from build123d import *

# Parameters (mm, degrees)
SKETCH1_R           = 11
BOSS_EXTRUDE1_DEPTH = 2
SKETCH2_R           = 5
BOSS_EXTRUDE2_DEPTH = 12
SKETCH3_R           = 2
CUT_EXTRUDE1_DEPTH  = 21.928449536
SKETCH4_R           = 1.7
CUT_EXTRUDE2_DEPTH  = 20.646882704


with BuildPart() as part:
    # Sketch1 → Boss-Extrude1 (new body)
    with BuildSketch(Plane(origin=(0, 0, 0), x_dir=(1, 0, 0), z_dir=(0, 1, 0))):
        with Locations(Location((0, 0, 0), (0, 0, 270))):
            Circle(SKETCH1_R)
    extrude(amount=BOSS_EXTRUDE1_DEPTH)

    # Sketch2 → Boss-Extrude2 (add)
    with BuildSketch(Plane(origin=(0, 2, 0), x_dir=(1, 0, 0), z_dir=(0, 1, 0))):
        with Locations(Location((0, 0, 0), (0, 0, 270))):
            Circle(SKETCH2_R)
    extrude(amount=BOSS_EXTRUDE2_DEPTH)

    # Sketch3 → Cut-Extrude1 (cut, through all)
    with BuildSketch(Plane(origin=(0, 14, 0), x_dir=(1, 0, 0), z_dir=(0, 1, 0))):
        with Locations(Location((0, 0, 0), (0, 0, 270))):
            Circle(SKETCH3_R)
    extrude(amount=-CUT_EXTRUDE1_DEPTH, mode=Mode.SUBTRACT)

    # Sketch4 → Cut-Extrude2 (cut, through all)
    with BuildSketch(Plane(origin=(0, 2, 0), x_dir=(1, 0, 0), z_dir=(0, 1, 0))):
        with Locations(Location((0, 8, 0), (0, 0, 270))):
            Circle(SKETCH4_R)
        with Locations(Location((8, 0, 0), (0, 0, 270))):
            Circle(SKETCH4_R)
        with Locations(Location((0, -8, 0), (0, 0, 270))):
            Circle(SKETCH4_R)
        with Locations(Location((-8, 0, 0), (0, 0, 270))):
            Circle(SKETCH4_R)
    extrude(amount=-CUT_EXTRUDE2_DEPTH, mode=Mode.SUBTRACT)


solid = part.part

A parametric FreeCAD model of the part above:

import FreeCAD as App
import Part
import Sketcher

V = App.Vector

doc = App.newDocument("Part")
body = doc.addObject("PartDesign::Body", "Body")

sketch1 = doc.addObject("Sketcher::SketchObject", "Sketch")
body.addObject(sketch1)
sketch1.AttachmentSupport = (doc.XZ_Plane, [""])
sketch1.MapMode = "FlatFace"
sketch1.addGeometry(Part.Circle(V(0, 0, 0), V(0, 0, 1), 11), False)
sketch1.addConstraint(Sketcher.Constraint("Coincident", 0, 3, -1, 1))
sketch1.addConstraint(Sketcher.Constraint("Diameter", 0, 22.0))
pad1 = doc.addObject("PartDesign::Pad", "Pad")
body.addObject(pad1)
pad1.Profile = sketch1
pad1.Length = 2
pad1.Reversed = True

sketch2 = doc.addObject("Sketcher::SketchObject", "Sketch001")
body.addObject(sketch2)
sketch2.AttachmentSupport = (doc.XZ_Plane, [""])
sketch2.MapMode = "FlatFace"
sketch2.AttachmentOffset = App.Placement(V(0, 0, -2), App.Rotation())
sketch2.addGeometry(Part.Circle(V(0, 0, 0), V(0, 0, 1), 5), False)
sketch2.addConstraint(Sketcher.Constraint("Coincident", 0, 3, -1, 1))
sketch2.addConstraint(Sketcher.Constraint("Diameter", 0, 10.0))
pad2 = doc.addObject("PartDesign::Pad", "Pad001")
body.addObject(pad2)
pad2.Profile = sketch2
pad2.Length = 12
pad2.Reversed = True

sketch3 = doc.addObject("Sketcher::SketchObject", "Sketch002")
body.addObject(sketch3)
sketch3.AttachmentSupport = (doc.XZ_Plane, [""])
sketch3.MapMode = "FlatFace"
sketch3.AttachmentOffset = App.Placement(V(0, 0, -14), App.Rotation())
sketch3.addGeometry(Part.Circle(V(0, 0, 0), V(0, 0, 1), 2), False)
sketch3.addConstraint(Sketcher.Constraint("Coincident", 0, 3, -1, 1))
sketch3.addConstraint(Sketcher.Constraint("Diameter", 0, 4.0))
pocket1 = doc.addObject("PartDesign::Pocket", "Pocket")
body.addObject(pocket1)
pocket1.Profile = sketch3
pocket1.Type = "ThroughAll"
pocket1.Reversed = True

sketch4 = doc.addObject("Sketcher::SketchObject", "Sketch003")
body.addObject(sketch4)
sketch4.AttachmentSupport = (doc.XZ_Plane, [""])
sketch4.MapMode = "FlatFace"
sketch4.AttachmentOffset = App.Placement(V(0, 0, -2), App.Rotation())
sketch4.addGeometry(Part.Circle(V(0, -8, 0), V(0, 0, 1), 1.7), False)
sketch4.addGeometry(Part.Circle(V(8, 0, 0), V(0, 0, 1), 1.7), False)
sketch4.addGeometry(Part.Circle(V(0, 8, 0), V(0, 0, 1), 1.7), False)
sketch4.addGeometry(Part.Circle(V(-8, 0, 0), V(0, 0, 1), 1.7), False)
sketch4.addConstraint(Sketcher.Constraint("Equal", 0, 1))
sketch4.addConstraint(Sketcher.Constraint("Equal", 1, 2))
sketch4.addConstraint(Sketcher.Constraint("Equal", 2, 3))
sketch4.addConstraint(Sketcher.Constraint("Symmetric", 0, 3, 2, 3, -1, 1))
sketch4.addConstraint(Sketcher.Constraint("Symmetric", 1, 3, 3, 3, -1, 1))
sketch4.addConstraint(Sketcher.Constraint("PointOnObject", 0, 3, -2))
sketch4.addConstraint(Sketcher.Constraint("PointOnObject", 1, 3, -1))
sketch4.addConstraint(Sketcher.Constraint("Diameter", 0, 3.4))
sketch4.addConstraint(Sketcher.Constraint("DistanceY", 0, 3, -1, 1, 8.0))
sketch4.addConstraint(Sketcher.Constraint("DistanceX", -1, 1, 1, 3, 8.0))
pocket2 = doc.addObject("PartDesign::Pocket", "Pocket001")
body.addObject(pocket2)
pocket2.Profile = sketch4
pocket2.Type = "ThroughAll"
pocket2.Reversed = True

doc.recompute()
